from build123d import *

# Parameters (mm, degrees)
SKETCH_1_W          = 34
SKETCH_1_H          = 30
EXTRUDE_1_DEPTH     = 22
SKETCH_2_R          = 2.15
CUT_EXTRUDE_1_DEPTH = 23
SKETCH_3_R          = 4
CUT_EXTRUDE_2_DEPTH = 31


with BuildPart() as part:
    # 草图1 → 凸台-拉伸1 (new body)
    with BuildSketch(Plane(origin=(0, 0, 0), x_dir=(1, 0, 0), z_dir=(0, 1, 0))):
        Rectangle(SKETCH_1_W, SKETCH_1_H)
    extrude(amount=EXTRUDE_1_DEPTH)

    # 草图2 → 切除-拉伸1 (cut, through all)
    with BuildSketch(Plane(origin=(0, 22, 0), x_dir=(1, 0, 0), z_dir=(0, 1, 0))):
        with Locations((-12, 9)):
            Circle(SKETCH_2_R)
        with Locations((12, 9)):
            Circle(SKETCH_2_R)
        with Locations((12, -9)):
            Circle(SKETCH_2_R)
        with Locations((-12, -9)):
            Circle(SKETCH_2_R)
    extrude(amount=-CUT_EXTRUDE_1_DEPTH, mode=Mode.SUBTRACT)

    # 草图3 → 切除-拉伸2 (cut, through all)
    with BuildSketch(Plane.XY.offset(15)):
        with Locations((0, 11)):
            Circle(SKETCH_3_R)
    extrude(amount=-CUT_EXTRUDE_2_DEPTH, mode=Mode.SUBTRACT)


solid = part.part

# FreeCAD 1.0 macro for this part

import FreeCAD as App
import Part
import Sketcher


def add_polygon(sketch, points):
    """Adds a closed chain of lines whose ends are joined by coincident constraints."""
    first, n = sketch.GeometryCount, len(points)
    for a, b in zip(points, points[1:] + points[:1]):
        sketch.addGeometry(Part.LineSegment(App.Vector(*a, 0), App.Vector(*b, 0)), False)
    for i in range(n):
        sketch.addConstraint(Sketcher.Constraint("Coincident", first + i, 2, first + (i + 1) % n, 1))

doc = App.newDocument("Part")
body = doc.addObject("PartDesign::Body", "Body")

sketch1 = body.newObject("Sketcher::SketchObject", "Sketch")
sketch1.AttachmentSupport = (doc.getObject("XZ_Plane"), [""])
sketch1.MapMode = "FlatFace"
add_polygon(sketch1, [(-17, -15), (-17, 15), (17, 15), (17, -15)])
sketch1.addConstraint([
    Sketcher.Constraint("Vertical", 0),
    Sketcher.Constraint("Horizontal", 1),
    Sketcher.Constraint("Vertical", 2),
    Sketcher.Constraint("Horizontal", 3),
    Sketcher.Constraint("Symmetric", 0, 2, 2, 2, -1, 1),
    Sketcher.Constraint("DistanceX", 1, 1, 1, 2, 34.0),
    Sketcher.Constraint("DistanceY", 0, 1, 0, 2, 30.0),
])
pad1 = body.newObject("PartDesign::Pad", "Pad")
pad1.Profile = sketch1
pad1.Length = 22
pad1.Reversed = True

sketch2 = body.newObject("Sketcher::SketchObject", "Sketch001")
sketch2.AttachmentSupport = (doc.getObject("XZ_Plane"), [""])
sketch2.MapMode = "FlatFace"
sketch2.AttachmentOffset = App.Placement(App.Vector(0, 0, -22), App.Rotation())
sketch2.addGeometry([
    Part.Circle(App.Vector(-12, -9, 0), App.Vector(0, 0, 1), 2.15),
    Part.Circle(App.Vector(12, -9, 0), App.Vector(0, 0, 1), 2.15),
    Part.Circle(App.Vector(12, 9, 0), App.Vector(0, 0, 1), 2.15),
    Part.Circle(App.Vector(-12, 9, 0), App.Vector(0, 0, 1), 2.15),
], False)
sketch2.addConstraint([
    Sketcher.Constraint("Equal", 0, 1),
    Sketcher.Constraint("Equal", 1, 2),
    Sketcher.Constraint("Equal", 2, 3),
    Sketcher.Constraint("Symmetric", 0, 3, 2, 3, -1, 1),
    Sketcher.Constraint("Symmetric", 1, 3, 3, 3, -1, 1),
    Sketcher.Constraint("Symmetric", 0, 3, 1, 3, -2),
    Sketcher.Constraint("Diameter", 0, 4.3),
    Sketcher.Constraint("DistanceX", 0, 3, -1, 1, 12.0),
    Sketcher.Constraint("DistanceY", 0, 3, -1, 1, 9.0),
])
pocket1 = body.newObject("PartDesign::Pocket", "Pocket")
pocket1.Profile = sketch2
pocket1.Type = "ThroughAll"
pocket1.Reversed = True

sketch3 = body.newObject("Sketcher::SketchObject", "Sketch002")
sketch3.AttachmentSupport = (doc.getObject("XY_Plane"), [""])
sketch3.MapMode = "FlatFace"
sketch3.AttachmentOffset = App.Placement(App.Vector(0, 0, 15), App.Rotation())
sketch3.addGeometry(Part.Circle(App.Vector(0, 11, 0), App.Vector(0, 0, 1), 4), False)
sketch3.addConstraint([
    Sketcher.Constraint("PointOnObject", 0, 3, -2),
    Sketcher.Constraint("Diameter", 0, 8.0),
    Sketcher.Constraint("DistanceY", -1, 1, 0, 3, 11.0),
])
pocket2 = body.newObject("PartDesign::Pocket", "Pocket001")
pocket2.Profile = sketch3
pocket2.Type = "ThroughAll"

doc.recompute()
